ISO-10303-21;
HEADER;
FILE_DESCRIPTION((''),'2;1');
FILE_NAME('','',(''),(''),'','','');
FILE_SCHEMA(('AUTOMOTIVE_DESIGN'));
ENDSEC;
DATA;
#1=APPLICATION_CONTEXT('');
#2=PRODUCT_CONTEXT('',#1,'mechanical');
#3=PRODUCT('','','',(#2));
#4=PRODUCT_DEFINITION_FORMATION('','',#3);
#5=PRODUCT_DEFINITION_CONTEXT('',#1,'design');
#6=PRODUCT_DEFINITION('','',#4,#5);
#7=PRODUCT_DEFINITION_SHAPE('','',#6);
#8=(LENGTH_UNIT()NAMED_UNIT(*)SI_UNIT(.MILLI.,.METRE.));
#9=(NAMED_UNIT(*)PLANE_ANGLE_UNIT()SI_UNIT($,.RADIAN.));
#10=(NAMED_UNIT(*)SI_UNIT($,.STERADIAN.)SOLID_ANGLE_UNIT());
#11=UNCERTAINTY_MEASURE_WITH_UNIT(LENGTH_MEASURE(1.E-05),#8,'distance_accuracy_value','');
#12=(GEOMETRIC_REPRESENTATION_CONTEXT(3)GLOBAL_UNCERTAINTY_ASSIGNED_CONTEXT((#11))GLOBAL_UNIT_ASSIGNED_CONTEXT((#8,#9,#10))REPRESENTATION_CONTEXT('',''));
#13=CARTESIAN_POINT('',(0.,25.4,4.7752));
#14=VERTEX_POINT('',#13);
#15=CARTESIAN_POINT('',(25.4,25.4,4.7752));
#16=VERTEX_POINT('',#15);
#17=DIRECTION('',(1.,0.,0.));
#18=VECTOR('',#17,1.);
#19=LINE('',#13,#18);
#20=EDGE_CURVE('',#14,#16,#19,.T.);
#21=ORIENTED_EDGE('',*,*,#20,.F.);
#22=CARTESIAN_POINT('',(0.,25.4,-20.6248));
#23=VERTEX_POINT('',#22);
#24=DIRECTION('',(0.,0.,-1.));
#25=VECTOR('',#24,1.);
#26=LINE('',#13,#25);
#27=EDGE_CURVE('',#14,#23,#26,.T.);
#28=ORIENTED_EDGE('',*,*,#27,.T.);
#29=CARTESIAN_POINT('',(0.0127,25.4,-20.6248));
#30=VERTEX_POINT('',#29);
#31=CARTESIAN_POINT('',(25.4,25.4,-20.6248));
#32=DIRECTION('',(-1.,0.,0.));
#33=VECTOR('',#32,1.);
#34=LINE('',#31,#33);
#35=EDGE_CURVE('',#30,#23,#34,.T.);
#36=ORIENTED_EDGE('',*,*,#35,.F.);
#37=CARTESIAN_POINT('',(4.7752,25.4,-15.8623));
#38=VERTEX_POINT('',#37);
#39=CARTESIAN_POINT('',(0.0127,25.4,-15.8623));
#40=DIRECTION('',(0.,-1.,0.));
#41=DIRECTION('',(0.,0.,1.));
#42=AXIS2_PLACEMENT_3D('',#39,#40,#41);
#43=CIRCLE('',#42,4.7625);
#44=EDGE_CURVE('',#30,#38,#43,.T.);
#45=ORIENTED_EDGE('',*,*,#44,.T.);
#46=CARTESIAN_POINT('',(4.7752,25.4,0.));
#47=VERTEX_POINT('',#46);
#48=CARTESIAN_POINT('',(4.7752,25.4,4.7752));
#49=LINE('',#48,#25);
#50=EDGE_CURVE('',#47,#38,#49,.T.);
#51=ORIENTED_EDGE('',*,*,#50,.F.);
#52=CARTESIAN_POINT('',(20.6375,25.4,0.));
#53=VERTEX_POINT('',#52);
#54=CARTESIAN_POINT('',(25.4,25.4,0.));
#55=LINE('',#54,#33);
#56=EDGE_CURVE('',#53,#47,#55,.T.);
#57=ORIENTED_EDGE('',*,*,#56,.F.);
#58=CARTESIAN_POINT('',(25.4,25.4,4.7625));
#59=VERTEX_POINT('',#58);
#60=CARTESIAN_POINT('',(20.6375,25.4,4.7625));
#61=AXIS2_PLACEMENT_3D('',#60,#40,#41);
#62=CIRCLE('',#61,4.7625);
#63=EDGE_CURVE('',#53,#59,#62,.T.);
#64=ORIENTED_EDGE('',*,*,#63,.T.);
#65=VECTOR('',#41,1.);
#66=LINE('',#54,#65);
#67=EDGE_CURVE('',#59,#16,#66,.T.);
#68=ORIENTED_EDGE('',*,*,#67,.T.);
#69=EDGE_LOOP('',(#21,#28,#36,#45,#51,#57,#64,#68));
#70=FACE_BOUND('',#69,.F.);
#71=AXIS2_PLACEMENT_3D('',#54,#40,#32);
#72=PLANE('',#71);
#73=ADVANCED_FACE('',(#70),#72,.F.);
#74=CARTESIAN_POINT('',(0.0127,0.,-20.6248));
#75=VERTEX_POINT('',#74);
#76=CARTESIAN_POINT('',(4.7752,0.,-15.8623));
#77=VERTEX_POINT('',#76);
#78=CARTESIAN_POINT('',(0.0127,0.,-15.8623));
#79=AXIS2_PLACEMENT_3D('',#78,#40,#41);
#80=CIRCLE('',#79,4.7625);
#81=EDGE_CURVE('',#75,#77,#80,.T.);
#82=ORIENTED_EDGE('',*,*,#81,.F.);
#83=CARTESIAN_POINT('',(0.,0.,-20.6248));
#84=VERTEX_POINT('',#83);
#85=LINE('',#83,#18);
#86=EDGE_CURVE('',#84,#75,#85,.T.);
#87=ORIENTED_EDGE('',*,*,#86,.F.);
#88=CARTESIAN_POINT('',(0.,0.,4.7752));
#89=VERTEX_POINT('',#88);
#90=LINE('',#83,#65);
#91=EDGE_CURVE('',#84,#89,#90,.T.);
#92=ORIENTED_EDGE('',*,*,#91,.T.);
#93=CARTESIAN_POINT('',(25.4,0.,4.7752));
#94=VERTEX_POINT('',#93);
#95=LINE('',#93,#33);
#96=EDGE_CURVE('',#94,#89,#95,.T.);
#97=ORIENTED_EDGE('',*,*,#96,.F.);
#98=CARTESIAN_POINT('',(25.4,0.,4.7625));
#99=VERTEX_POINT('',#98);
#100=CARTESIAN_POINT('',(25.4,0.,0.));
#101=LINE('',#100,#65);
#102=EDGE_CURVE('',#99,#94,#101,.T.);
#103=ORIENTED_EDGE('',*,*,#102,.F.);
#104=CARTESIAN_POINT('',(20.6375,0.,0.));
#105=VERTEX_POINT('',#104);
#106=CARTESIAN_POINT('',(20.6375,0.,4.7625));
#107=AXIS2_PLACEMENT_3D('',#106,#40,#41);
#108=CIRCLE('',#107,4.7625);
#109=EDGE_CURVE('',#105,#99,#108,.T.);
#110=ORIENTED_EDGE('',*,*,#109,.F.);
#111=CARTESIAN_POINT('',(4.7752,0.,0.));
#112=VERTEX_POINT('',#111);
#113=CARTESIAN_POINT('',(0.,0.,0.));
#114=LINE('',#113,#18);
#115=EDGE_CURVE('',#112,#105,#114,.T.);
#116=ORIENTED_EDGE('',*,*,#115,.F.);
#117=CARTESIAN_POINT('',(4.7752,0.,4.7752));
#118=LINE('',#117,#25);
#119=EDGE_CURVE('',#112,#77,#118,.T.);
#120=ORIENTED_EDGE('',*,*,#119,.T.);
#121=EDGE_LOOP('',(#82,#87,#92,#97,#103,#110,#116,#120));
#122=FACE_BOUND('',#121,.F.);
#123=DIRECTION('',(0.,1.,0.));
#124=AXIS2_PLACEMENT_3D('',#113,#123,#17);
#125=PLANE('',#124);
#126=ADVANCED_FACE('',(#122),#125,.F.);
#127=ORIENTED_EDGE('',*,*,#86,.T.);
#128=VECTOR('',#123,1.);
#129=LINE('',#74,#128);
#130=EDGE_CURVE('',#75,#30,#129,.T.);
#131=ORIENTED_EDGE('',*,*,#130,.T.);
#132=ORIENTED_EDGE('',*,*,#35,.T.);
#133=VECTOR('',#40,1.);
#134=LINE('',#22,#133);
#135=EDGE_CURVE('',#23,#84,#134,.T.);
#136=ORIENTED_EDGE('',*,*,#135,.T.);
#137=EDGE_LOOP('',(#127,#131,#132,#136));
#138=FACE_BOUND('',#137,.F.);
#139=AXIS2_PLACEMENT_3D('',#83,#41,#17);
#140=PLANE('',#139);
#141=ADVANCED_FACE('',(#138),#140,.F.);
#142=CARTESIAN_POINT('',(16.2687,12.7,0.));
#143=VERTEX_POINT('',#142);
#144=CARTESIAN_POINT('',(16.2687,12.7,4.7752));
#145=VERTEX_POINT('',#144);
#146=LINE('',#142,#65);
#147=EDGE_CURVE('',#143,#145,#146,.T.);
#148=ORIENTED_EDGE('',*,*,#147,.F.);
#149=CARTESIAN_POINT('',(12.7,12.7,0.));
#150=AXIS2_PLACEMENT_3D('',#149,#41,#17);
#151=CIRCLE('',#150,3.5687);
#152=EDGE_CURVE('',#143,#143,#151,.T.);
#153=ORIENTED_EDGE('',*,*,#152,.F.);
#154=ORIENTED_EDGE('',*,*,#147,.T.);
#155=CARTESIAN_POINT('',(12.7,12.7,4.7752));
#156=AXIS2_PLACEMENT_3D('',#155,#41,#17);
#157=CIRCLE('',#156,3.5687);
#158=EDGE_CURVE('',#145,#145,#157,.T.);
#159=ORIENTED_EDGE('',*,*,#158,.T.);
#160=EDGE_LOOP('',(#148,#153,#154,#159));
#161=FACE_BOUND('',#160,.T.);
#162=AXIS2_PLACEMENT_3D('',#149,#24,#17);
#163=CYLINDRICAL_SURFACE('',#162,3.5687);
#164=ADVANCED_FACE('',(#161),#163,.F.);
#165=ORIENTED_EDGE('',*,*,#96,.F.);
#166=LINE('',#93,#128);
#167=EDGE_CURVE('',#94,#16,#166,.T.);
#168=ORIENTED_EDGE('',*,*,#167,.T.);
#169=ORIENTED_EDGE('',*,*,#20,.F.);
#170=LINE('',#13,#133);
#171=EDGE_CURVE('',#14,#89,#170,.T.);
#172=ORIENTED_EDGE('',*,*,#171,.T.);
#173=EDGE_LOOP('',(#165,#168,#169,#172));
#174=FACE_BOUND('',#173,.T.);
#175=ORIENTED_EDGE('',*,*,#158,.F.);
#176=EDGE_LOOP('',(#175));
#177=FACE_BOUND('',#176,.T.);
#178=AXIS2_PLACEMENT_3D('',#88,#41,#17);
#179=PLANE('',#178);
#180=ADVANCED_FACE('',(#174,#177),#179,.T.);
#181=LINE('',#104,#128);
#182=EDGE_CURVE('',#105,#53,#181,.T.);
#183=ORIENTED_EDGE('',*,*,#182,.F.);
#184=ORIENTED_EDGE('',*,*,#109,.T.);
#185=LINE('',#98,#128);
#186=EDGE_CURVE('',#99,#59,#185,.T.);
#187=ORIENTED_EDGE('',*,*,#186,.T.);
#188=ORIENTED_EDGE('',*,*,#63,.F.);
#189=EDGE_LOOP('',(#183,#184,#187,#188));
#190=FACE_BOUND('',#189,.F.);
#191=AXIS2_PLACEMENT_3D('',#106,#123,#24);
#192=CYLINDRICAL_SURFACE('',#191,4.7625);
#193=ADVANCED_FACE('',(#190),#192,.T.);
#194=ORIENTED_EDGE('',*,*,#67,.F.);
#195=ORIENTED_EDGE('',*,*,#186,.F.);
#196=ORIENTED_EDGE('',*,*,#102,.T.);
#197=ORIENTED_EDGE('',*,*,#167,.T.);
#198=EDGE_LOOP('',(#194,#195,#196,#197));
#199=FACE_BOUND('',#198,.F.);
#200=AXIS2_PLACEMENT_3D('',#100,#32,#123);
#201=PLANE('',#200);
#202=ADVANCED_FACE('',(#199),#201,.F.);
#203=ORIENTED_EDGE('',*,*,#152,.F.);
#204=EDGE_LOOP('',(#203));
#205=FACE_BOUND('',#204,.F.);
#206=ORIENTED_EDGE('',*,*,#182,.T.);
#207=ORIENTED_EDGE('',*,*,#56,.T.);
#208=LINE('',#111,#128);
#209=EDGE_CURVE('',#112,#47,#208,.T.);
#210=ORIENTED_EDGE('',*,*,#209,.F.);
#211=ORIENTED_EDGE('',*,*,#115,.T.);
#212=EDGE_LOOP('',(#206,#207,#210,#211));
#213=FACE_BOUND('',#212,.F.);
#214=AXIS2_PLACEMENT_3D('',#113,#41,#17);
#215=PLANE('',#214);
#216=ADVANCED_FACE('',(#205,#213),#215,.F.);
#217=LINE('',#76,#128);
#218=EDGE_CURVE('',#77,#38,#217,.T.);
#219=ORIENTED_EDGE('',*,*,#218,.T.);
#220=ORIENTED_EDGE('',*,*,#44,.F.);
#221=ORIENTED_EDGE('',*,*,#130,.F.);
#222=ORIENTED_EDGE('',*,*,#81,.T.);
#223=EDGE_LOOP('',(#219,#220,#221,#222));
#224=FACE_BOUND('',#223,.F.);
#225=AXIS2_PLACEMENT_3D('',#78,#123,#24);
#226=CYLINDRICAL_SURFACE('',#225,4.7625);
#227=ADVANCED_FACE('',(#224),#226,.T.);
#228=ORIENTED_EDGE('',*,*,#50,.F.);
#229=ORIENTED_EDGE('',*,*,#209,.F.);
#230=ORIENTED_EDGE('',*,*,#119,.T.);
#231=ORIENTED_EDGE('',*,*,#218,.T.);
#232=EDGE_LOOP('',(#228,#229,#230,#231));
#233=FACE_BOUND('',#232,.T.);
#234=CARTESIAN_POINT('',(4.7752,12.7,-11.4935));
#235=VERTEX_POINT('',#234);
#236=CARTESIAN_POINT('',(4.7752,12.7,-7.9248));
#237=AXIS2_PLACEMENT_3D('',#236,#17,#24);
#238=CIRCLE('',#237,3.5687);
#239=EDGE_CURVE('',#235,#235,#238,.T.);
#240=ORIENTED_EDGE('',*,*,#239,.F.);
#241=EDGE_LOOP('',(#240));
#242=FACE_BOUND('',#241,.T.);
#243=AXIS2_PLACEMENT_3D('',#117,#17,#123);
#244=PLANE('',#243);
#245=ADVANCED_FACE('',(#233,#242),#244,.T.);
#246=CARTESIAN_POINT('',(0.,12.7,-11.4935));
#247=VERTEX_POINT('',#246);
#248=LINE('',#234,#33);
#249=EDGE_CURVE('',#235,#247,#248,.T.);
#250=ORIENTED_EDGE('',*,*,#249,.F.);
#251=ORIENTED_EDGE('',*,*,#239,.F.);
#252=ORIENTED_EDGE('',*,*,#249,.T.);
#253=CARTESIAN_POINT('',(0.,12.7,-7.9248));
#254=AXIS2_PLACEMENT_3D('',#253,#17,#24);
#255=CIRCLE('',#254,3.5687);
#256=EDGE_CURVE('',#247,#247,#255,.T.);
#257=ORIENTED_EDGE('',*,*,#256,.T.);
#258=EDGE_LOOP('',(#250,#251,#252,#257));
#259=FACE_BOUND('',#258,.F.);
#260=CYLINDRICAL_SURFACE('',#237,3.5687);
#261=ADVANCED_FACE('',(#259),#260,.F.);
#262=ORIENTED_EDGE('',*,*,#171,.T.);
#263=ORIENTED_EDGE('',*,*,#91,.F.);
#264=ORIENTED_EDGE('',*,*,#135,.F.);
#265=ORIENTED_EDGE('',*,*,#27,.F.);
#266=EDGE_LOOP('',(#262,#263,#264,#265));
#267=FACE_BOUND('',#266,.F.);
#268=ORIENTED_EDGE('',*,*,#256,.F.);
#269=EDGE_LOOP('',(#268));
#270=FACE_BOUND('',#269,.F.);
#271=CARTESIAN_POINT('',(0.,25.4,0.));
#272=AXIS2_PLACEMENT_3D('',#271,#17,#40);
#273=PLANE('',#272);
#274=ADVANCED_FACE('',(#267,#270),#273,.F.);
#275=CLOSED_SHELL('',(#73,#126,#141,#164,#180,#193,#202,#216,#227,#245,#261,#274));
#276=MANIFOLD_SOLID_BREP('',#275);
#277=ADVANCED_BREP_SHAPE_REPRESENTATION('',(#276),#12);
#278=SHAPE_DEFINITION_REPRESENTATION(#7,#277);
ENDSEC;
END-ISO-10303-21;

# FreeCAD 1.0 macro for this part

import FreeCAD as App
import Part
import Sketcher
from FreeCAD import Vector
Q = App.Units.Quantity


def edges_at(feature, points):
    """Names of the edges that pass closest to the given points."""
    edges = feature.Shape.Edges
    near = lambda p: min(range(len(edges)), key=lambda i: edges[i].distToShape(Part.Vertex(*p))[0])
    return sorted({f"Edge{near(p) + 1}" for p in points})

doc = App.newDocument("Part")
body = doc.addObject("PartDesign::Body", "Body")

# Sketch on XY plane
sketch1 = body.newObject("Sketcher::SketchObject", "Sketch")
sketch1.AttachmentSupport = (doc.getObject("XY_Plane"), [""])
sketch1.MapMode = "FlatFace"
sketch1.addGeometry([
    Part.LineSegment(Vector(0, 25.4, 0), Vector(0, 0, 0)),  # 0
    Part.LineSegment(Vector(0, 0, 0), Vector(25.4, 0, 0)),  # 1
    Part.LineSegment(Vector(25.4, 0, 0), Vector(25.4, 25.4, 0)),  # 2
    Part.LineSegment(Vector(25.4, 25.4, 0), Vector(0, 25.4, 0)),  # 3
    Part.Circle(Vector(12.7, 12.7, 0), Vector(0, 0, 1), 3.6),  # 4
], False)
sketch1.addConstraint([
    Sketcher.Constraint("Coincident", 0, 2, 1, 1),
    Sketcher.Constraint("Coincident", 1, 2, 2, 1),
    Sketcher.Constraint("Coincident", 2, 2, 3, 1),
    Sketcher.Constraint("Coincident", 3, 2, 0, 1),
    Sketcher.Constraint("Vertical", 0),
    Sketcher.Constraint("Horizontal", 1),
    Sketcher.Constraint("Vertical", 2),
    Sketcher.Constraint("Horizontal", 3),
    Sketcher.Constraint("Coincident", 0, 2, -1, 1),
    Sketcher.Constraint("Equal", 3, 0),
    Sketcher.Constraint("DistanceX", 1, 1, 1, 2, Q("1 in")),
    Sketcher.Constraint("Diameter", 4, Q("0.281 in")),
    Sketcher.Constraint("DistanceX", -1, 1, 4, 3, Q("0.5 in")),
    Sketcher.Constraint("DistanceY", -1, 1, 4, 3, Q("0.5 in")),
])
pad1 = body.newObject("PartDesign::Pad", "Pad")
pad1.Profile = sketch1
pad1.Length = Q("0.188 in")

# Sketch on XY plane
sketch2 = body.newObject("Sketcher::SketchObject", "Sketch001")
sketch2.AttachmentSupport = (doc.getObject("XY_Plane"), [""])
sketch2.MapMode = "FlatFace"
sketch2.AttachmentOffset = App.Placement(Vector(0, 0, 0.188 * 25.4), App.Rotation())
sketch2.addGeometry([
    Part.LineSegment(Vector(4.8, 0, 0), Vector(4.8, 25.4, 0)),
    Part.LineSegment(Vector(4.8, 25.4, 0), Vector(0, 25.4, 0)),
    Part.LineSegment(Vector(0, 25.4, 0), Vector(0, 0, 0)),
    Part.LineSegment(Vector(0, 0, 0), Vector(4.8, 0, 0)),
], False)
sketch2.addConstraint([
    Sketcher.Constraint("Coincident", 0, 2, 1, 1),
    Sketcher.Constraint("Coincident", 1, 2, 2, 1),
    Sketcher.Constraint("Coincident", 2, 2, 3, 1),
    Sketcher.Constraint("Coincident", 3, 2, 0, 1),
    Sketcher.Constraint("Vertical", 0),
    Sketcher.Constraint("Horizontal", 1),
    Sketcher.Constraint("Vertical", 2),
    Sketcher.Constraint("Horizontal", 3),
    Sketcher.Constraint("Coincident", 2, 2, -1, 1),
    Sketcher.Constraint("DistanceX", 1, 2, 1, 1, Q("0.188 in")),
    Sketcher.Constraint("DistanceY", 0, 1, 0, 2, Q("1 in")),
])
pad2 = body.newObject("PartDesign::Pad", "Pad001")
pad2.Profile = sketch2
pad2.Length = Q("1 in")
pad2.Reversed = True

# Sketch on YZ plane
sketch3 = body.newObject("Sketcher::SketchObject", "Sketch002")
sketch3.AttachmentSupport = (doc.getObject("YZ_Plane"), [""])
sketch3.MapMode = "FlatFace"
sketch3.AttachmentOffset = App.Placement(Vector(0, 0, 0.188 * 25.4), App.Rotation())
sketch3.addGeometry(Part.Circle(Vector(12.7, -7.9, 0), Vector(0, 0, 1), 3.6), False)
sketch3.addConstraint([
    Sketcher.Constraint("Diameter", 0, Q("0.281 in")),
    Sketcher.Constraint("DistanceX", -1, 1, 0, 3, Q("0.5 in")),
    Sketcher.Constraint("DistanceY", 0, 3, -1, 1, Q("0.312 in")),
])
pocket1 = body.newObject("PartDesign::Pocket", "Pocket")
pocket1.Profile = sketch3
pocket1.Type = "UpToFirst"
doc.recompute()

fillet = body.newObject("PartDesign::Fillet", "Fillet")
fillet.Base = (pocket1, edges_at(pocket1, [(4.775, 12.7, -20.625)]))
fillet.Radius = Q("0.1875 in")
doc.recompute()

fillet2 = body.newObject("PartDesign::Fillet", "Fillet001")
fillet2.Base = (fillet, edges_at(fillet, [(25.4, 12.7, 0)]))
fillet2.Radius = Q("0.1875 in")

doc.recompute()
